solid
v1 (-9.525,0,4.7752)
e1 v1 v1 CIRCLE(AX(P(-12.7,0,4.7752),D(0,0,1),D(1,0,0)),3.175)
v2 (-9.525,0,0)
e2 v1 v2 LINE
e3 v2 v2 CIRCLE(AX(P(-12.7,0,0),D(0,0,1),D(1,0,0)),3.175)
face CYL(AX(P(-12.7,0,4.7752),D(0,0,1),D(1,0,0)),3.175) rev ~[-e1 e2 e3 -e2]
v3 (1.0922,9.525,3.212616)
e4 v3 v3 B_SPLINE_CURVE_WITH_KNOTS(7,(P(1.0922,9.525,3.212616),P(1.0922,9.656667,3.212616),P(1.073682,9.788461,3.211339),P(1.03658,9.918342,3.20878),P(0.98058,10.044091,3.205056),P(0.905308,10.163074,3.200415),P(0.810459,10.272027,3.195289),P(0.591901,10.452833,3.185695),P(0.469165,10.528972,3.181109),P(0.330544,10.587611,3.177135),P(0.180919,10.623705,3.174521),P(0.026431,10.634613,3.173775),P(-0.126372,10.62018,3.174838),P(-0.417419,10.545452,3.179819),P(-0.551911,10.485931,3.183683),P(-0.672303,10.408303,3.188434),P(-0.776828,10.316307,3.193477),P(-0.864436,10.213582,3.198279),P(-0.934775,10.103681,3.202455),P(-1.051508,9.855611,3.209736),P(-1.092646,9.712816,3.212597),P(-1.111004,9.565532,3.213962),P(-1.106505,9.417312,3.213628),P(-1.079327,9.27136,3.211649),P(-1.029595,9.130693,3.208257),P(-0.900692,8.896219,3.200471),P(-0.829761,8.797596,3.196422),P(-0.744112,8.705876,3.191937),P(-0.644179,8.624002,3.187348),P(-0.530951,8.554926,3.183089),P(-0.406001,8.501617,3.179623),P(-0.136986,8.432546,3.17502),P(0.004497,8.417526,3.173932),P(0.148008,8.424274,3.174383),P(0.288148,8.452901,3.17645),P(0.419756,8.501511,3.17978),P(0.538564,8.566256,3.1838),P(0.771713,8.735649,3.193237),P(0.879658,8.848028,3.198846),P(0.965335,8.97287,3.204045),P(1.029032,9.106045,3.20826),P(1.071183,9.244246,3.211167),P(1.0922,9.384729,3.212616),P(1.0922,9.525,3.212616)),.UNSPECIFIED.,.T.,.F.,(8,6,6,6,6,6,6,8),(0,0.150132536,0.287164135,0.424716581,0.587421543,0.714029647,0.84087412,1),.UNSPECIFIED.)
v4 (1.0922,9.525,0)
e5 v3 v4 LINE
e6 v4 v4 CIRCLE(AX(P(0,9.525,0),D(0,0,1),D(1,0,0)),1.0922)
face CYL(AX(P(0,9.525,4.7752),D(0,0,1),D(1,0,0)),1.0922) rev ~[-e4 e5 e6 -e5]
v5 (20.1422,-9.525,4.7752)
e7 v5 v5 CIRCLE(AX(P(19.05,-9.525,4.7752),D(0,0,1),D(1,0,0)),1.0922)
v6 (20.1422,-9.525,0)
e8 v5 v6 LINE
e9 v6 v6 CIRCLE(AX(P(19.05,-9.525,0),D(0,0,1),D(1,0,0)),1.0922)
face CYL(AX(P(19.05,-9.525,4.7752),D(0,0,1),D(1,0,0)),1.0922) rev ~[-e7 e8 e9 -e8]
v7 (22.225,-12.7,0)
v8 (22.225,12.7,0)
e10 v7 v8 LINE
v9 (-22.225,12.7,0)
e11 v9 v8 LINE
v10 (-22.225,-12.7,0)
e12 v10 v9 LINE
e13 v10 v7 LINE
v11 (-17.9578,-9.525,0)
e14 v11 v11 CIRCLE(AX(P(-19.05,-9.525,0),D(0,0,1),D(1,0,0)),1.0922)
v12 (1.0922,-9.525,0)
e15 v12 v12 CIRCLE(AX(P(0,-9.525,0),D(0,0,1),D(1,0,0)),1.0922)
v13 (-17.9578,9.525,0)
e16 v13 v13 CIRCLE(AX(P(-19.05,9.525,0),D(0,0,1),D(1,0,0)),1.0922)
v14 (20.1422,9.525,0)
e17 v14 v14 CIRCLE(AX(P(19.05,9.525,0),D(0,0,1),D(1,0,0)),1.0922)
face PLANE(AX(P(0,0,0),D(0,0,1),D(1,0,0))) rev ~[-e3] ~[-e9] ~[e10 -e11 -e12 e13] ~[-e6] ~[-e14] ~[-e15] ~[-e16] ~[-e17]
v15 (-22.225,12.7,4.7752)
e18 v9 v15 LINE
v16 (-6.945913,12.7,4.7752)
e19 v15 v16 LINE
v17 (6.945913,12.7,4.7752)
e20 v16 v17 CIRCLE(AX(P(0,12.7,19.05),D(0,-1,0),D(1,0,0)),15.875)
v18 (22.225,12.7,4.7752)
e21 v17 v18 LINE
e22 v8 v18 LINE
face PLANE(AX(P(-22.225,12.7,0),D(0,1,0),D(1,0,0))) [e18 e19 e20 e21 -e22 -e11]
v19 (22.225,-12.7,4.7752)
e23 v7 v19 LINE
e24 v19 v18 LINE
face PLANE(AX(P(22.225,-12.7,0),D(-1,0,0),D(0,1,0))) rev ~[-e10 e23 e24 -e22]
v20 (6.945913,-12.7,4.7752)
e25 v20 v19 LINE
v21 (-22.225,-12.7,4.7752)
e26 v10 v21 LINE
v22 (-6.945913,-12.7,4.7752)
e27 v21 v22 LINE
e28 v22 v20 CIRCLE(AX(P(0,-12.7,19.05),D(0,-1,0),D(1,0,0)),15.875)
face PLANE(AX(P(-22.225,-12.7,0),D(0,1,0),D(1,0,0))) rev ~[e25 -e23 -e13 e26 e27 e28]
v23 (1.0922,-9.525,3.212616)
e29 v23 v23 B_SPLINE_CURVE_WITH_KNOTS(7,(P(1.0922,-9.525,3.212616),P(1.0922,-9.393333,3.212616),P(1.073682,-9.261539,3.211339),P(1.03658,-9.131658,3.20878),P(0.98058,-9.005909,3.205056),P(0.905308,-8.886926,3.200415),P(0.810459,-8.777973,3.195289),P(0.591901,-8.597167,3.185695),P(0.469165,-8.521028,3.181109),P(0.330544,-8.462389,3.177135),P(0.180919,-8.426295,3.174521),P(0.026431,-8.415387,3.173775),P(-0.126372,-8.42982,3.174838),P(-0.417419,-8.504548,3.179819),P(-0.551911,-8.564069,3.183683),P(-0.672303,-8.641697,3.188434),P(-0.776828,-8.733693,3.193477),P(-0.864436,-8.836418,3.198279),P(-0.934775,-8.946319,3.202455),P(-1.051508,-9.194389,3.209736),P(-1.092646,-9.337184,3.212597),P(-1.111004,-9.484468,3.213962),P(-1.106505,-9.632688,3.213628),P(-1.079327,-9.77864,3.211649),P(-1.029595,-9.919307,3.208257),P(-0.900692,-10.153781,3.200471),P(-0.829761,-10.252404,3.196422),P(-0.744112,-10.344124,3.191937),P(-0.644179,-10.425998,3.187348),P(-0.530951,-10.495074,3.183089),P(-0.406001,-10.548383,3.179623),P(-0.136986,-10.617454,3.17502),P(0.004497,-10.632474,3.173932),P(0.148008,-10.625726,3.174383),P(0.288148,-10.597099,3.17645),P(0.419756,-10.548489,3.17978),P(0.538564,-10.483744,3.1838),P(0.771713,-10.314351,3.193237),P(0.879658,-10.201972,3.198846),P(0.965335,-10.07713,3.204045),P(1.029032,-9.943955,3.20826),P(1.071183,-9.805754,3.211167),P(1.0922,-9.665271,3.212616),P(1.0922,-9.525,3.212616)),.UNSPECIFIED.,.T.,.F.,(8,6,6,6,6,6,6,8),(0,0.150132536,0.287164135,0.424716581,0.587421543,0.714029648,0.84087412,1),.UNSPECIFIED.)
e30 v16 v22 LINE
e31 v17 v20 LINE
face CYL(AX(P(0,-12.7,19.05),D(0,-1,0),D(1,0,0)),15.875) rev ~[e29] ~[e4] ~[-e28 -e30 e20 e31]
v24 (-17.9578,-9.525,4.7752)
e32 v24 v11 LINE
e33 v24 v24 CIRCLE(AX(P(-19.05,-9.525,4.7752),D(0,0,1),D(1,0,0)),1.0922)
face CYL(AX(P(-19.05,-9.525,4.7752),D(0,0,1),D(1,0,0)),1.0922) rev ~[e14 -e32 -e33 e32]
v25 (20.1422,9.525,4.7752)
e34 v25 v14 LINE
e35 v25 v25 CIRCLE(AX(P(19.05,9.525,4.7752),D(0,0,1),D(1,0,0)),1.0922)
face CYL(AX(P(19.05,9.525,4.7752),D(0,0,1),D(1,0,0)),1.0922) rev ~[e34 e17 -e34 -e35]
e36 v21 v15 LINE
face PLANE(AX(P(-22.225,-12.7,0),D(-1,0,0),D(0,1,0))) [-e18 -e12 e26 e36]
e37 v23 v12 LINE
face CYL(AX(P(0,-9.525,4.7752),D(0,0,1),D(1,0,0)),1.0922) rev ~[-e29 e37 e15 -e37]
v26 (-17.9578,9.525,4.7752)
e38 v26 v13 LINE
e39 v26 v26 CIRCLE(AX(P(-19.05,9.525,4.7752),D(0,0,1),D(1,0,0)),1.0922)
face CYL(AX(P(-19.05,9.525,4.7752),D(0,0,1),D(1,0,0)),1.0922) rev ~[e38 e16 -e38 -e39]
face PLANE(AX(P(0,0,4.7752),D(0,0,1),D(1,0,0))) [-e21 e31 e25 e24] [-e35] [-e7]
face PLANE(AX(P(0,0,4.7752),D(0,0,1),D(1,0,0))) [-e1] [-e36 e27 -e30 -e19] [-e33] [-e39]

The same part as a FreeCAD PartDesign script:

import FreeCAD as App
import Part
import Sketcher
from FreeCAD import Vector
Q = App.Units.Quantity

doc = App.newDocument("Part")
body = doc.addObject("PartDesign::Body", "Body")

# Sketch on XY plane
sketch1 = body.newObject("Sketcher::SketchObject", "Sketch")
sketch1.AttachmentSupport = (doc.getObject("XY_Plane"), [""])
sketch1.MapMode = "FlatFace"
sketch1.addGeometry([
    Part.LineSegment(Vector(-22.225, 12.7, 0), Vector(-22.225, -12.7, 0)),
    Part.LineSegment(Vector(-22.225, -12.7, 0), Vector(22.225, -12.7, 0)),
    Part.LineSegment(Vector(22.225, -12.7, 0), Vector(22.225, 12.7, 0)),
    Part.LineSegment(Vector(22.225, 12.7, 0), Vector(-22.225, 12.7, 0)),
], False)
sketch1.addConstraint([
    Sketcher.Constraint("Coincident", 0, 2, 1, 1),
    Sketcher.Constraint("Coincident", 1, 2, 2, 1),
    Sketcher.Constraint("Coincident", 2, 2, 3, 1),
    Sketcher.Constraint("Coincident", 3, 2, 0, 1),
    Sketcher.Constraint("Vertical", 0),
    Sketcher.Constraint("Horizontal", 1),
    Sketcher.Constraint("Vertical", 2),
    Sketcher.Constraint("Horizontal", 3),
    Sketcher.Constraint("Symmetric", 0, 2, 2, 2, -1, 1),
    Sketcher.Constraint("DistanceY", 0, 2, 0, 1, Q("1 in")),
    Sketcher.Constraint("DistanceX", 1, 1, 1, 2, Q("1.75 in")),
])
pad1 = body.newObject("PartDesign::Pad", "Pad")
pad1.Profile = sketch1
pad1.Length = Q("0.188 in")

# Sketch on XY plane
sketch2 = body.newObject("Sketcher::SketchObject", "Sketch001")
sketch2.AttachmentSupport = (doc.getObject("XY_Plane"), [""])
sketch2.MapMode = "FlatFace"
sketch2.AttachmentOffset = App.Placement(Vector(0, 0, 0.188 * 25.4), App.Rotation())
sketch2.addGeometry([
    Part.Circle(Vector(-19.05, 9.525, 0), Vector(0, 0, 1), 1.0922),  # 0
    Part.Circle(Vector(19.05, 9.525, 0), Vector(0, 0, 1), 1.0922),  # 1
    Part.Circle(Vector(19.05, -9.525, 0), Vector(0, 0, 1), 1.0922),  # 2
    Part.Circle(Vector(-19.05, -9.525, 0), Vector(0, 0, 1), 1.0922),  # 3
    Part.Circle(Vector(-12.7, 0, 0), Vector(0, 0, 1), 3.175),  # 4
    Part.Circle(Vector(0, 9.525, 0), Vector(0, 0, 1), 1.0922),  # 5
    Part.Circle(Vector(0, -9.525, 0), Vector(0, 0, 1), 1.0922),  # 6
], False)
sketch2.addConstraint([
    Sketcher.Constraint("Equal", 0, 1),
    Sketcher.Constraint("Equal", 1, 2),
    Sketcher.Constraint("Equal", 2, 3),
    Sketcher.Constraint("Equal", 3, 5),
    Sketcher.Constraint("Equal", 5, 6),
    Sketcher.Constraint("Symmetric", 0, 3, 2, 3, -1, 1),
    Sketcher.Constraint("Symmetric", 1, 3, 3, 3, -1, 1),
    Sketcher.Constraint("Symmetric", 5, 3, 6, 3, -1, 1),
    Sketcher.Constraint("Symmetric", 0, 3, 1, 3, -2),
    Sketcher.Constraint("PointOnObject", 4, 3, -1),
    Sketcher.Constraint("PointOnObject", 5, 3, -2),
    Sketcher.Constraint("Horizontal", 1, 3, 5, 3),
    Sketcher.Constraint("Diameter", 4, Q("0.25 in")),
    Sketcher.Constraint("Diameter", 0, Q("0.086 in")),
    Sketcher.Constraint("DistanceX", 4, 3, -1, 1, Q("0.5 in")),
    Sketcher.Constraint("DistanceX", 0, 3, 1, 3, Q("1.5 in")),
    Sketcher.Constraint("DistanceY", 2, 3, 1, 3, Q("0.75 in")),
])
pocket1 = body.newObject("PartDesign::Pocket", "Pocket")
pocket1.Profile = sketch2
pocket1.Type = "ThroughAll"

# Sketch on XZ plane
sketch3 = body.newObject("Sketcher::SketchObject", "Sketch002")
sketch3.AttachmentSupport = (doc.getObject("XZ_Plane"), [""])
sketch3.MapMode = "FlatFace"
sketch3.AttachmentOffset = App.Placement(Vector(0, 0, 0.5 * 25.4), App.Rotation())
sketch3.addGeometry(Part.Circle(Vector(0, 19.05, 0), Vector(0, 0, 1), 15.875), False)
sketch3.addConstraint([
    Sketcher.Constraint("PointOnObject", 0, 3, -2),
    Sketcher.Constraint("Diameter", 0, Q("1.25 in")),
    Sketcher.Constraint("DistanceY", -1, 1, 0, 3, Q("0.75 in")),
])
pocket2 = body.newObject("PartDesign::Pocket", "Pocket001")
pocket2.Profile = sketch3
pocket2.Type = "ThroughAll"

doc.recompute()
